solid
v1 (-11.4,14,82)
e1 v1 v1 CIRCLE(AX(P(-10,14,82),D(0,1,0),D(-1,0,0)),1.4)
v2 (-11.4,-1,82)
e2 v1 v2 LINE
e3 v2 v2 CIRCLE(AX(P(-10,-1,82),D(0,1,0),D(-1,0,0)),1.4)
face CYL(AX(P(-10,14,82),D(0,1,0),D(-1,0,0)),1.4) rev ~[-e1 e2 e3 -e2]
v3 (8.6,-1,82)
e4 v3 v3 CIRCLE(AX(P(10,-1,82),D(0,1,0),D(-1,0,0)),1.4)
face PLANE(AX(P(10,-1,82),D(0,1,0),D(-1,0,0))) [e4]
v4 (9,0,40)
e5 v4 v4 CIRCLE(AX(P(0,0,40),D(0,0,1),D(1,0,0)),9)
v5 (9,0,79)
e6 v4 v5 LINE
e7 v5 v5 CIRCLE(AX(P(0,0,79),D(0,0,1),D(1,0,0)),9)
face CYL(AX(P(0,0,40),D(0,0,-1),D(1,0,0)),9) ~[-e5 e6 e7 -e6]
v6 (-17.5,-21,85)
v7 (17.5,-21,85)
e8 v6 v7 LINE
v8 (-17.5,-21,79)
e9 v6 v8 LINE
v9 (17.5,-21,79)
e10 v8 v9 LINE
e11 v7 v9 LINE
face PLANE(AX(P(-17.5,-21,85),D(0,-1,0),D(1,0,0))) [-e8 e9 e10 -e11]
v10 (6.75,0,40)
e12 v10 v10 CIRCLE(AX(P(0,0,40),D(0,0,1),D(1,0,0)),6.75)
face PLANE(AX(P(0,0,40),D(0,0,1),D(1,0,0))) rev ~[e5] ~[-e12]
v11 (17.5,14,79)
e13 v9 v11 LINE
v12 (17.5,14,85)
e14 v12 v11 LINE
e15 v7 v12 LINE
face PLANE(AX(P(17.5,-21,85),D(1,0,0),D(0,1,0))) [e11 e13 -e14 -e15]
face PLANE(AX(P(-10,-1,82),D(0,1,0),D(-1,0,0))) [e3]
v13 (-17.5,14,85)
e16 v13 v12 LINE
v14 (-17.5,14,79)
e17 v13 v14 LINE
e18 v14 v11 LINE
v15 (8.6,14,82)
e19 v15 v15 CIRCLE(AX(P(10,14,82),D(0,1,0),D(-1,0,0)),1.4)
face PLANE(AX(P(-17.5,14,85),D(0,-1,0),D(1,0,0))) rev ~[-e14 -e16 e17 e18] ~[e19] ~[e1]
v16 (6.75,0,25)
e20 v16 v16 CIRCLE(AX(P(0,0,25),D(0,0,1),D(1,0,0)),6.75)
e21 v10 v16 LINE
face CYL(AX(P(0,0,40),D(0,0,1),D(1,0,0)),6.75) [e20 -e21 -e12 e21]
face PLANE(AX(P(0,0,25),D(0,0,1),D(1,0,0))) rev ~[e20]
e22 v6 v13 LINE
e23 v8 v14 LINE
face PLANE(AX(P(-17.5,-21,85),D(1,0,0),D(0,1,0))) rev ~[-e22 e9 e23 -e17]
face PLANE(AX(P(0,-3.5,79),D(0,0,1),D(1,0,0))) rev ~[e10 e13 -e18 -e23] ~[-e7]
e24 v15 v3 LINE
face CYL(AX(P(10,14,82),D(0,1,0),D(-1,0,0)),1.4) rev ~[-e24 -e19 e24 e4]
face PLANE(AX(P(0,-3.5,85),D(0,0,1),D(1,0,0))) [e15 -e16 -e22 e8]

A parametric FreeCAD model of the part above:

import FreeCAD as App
import Part
import Sketcher

doc = App.newDocument("Part")
body = doc.addObject("PartDesign::Body", "Body")

sketch1 = body.newObject("Sketcher::SketchObject", "Sketch")
sketch1.AttachmentSupport = (doc.getObject("XY_Plane"), [""])
sketch1.MapMode = "FlatFace"
sketch1.AttachmentOffset = App.Placement(App.Vector(0, 0, 40), App.Rotation())
sketch1.addGeometry(Part.Circle(App.Vector(0, 0, 0), App.Vector(0, 0, 1), 7), False)
sketch1.addConstraint([
    Sketcher.Constraint("Coincident", 0, 3, -1, 1),
    Sketcher.Constraint("Diameter", 0, 13.5),
])
pad1 = body.newObject("PartDesign::Pad", "Pad")
pad1.Profile = sketch1
pad1.Length = 15
pad1.Reversed = True

sketch2 = body.newObject("Sketcher::SketchObject", "Sketch001")
sketch2.AttachmentSupport = (doc.getObject("XY_Plane"), [""])
sketch2.MapMode = "FlatFace"
sketch2.AttachmentOffset = App.Placement(App.Vector(0, 0, 40), App.Rotation())
sketch2.addGeometry(Part.Circle(App.Vector(0, 0, 0), App.Vector(0, 0, 1), 9), False)
sketch2.addConstraint([
    Sketcher.Constraint("Coincident", 0, 3, -1, 1),
    Sketcher.Constraint("Diameter", 0, 18.0),
])
pad2 = body.newObject("PartDesign::Pad", "Pad001")
pad2.Profile = sketch2
pad2.Length = 45

sketch3 = body.newObject("Sketcher::SketchObject", "Sketch002")
sketch3.AttachmentSupport = (doc.getObject("XY_Plane"), [""])
sketch3.MapMode = "FlatFace"
sketch3.AttachmentOffset = App.Placement(App.Vector(0, 0, 85), App.Rotation())
sketch3.addGeometry([
    Part.LineSegment(App.Vector(-18, 14, 0), App.Vector(-18, -21, 0)),
    Part.LineSegment(App.Vector(-18, -21, 0), App.Vector(18, -21, 0)),
    Part.LineSegment(App.Vector(18, -21, 0), App.Vector(18, 14, 0)),
    Part.LineSegment(App.Vector(18, 14, 0), App.Vector(-18, 14, 0)),
    Part.Circle(App.Vector(0, 0, 0), App.Vector(0, 0, 1), 9),
], False)
sketch3.addConstraint([
    Sketcher.Constraint("Coincident", 0, 2, 1, 1),
    Sketcher.Constraint("Coincident", 1, 2, 2, 1),
    Sketcher.Constraint("Coincident", 2, 2, 3, 1),
    Sketcher.Constraint("Coincident", 3, 2, 0, 1),
    Sketcher.Constraint("Vertical", 0),
    Sketcher.Constraint("Horizontal", 1),
    Sketcher.Constraint("Vertical", 2),
    Sketcher.Constraint("Horizontal", 3),
    Sketcher.Constraint("Coincident", 4, 3, -1, 1),
    Sketcher.Constraint("Equal", 3, 0),
    Sketcher.Constraint("Diameter", 4, 18.0),
    Sketcher.Constraint("DistanceX", 1, 1, 1, 2, 35.0),
    Sketcher.Constraint("DistanceY", 0, 2, -1, 1, 21.0),
    Sketcher.Constraint("DistanceX", 0, 2, -1, 1, 17.5),
])
pad3 = body.newObject("PartDesign::Pad", "Pad002")
pad3.Profile = sketch3
pad3.Length = 6
pad3.Reversed = True

sketch4 = body.newObject("Sketcher::SketchObject", "Sketch003")
sketch4.AttachmentSupport = (doc.getObject("XZ_Plane"), [""])
sketch4.MapMode = "FlatFace"
sketch4.AttachmentOffset = App.Placement(App.Vector(0, 0, -14), App.Rotation())
sketch4.addGeometry([
    Part.Circle(App.Vector(10, 82, 0), App.Vector(0, 0, 1), 1.4),
    Part.Circle(App.Vector(-10, 82, 0), App.Vector(0, 0, 1), 1.4),
], False)
sketch4.addConstraint([
    Sketcher.Constraint("Equal", 0, 1),
    Sketcher.Constraint("Symmetric", 0, 3, 1, 3, -2),
    Sketcher.Constraint("Diameter", 0, 2.8),
    Sketcher.Constraint("DistanceX", -1, 1, 0, 3, 10.0),
    Sketcher.Constraint("DistanceY", -1, 1, 0, 3, 82.0),
])
pocket1 = body.newObject("PartDesign::Pocket", "Pocket")
pocket1.Profile = sketch4
pocket1.Length = 15
pocket1.Reversed = True

doc.recompute()
